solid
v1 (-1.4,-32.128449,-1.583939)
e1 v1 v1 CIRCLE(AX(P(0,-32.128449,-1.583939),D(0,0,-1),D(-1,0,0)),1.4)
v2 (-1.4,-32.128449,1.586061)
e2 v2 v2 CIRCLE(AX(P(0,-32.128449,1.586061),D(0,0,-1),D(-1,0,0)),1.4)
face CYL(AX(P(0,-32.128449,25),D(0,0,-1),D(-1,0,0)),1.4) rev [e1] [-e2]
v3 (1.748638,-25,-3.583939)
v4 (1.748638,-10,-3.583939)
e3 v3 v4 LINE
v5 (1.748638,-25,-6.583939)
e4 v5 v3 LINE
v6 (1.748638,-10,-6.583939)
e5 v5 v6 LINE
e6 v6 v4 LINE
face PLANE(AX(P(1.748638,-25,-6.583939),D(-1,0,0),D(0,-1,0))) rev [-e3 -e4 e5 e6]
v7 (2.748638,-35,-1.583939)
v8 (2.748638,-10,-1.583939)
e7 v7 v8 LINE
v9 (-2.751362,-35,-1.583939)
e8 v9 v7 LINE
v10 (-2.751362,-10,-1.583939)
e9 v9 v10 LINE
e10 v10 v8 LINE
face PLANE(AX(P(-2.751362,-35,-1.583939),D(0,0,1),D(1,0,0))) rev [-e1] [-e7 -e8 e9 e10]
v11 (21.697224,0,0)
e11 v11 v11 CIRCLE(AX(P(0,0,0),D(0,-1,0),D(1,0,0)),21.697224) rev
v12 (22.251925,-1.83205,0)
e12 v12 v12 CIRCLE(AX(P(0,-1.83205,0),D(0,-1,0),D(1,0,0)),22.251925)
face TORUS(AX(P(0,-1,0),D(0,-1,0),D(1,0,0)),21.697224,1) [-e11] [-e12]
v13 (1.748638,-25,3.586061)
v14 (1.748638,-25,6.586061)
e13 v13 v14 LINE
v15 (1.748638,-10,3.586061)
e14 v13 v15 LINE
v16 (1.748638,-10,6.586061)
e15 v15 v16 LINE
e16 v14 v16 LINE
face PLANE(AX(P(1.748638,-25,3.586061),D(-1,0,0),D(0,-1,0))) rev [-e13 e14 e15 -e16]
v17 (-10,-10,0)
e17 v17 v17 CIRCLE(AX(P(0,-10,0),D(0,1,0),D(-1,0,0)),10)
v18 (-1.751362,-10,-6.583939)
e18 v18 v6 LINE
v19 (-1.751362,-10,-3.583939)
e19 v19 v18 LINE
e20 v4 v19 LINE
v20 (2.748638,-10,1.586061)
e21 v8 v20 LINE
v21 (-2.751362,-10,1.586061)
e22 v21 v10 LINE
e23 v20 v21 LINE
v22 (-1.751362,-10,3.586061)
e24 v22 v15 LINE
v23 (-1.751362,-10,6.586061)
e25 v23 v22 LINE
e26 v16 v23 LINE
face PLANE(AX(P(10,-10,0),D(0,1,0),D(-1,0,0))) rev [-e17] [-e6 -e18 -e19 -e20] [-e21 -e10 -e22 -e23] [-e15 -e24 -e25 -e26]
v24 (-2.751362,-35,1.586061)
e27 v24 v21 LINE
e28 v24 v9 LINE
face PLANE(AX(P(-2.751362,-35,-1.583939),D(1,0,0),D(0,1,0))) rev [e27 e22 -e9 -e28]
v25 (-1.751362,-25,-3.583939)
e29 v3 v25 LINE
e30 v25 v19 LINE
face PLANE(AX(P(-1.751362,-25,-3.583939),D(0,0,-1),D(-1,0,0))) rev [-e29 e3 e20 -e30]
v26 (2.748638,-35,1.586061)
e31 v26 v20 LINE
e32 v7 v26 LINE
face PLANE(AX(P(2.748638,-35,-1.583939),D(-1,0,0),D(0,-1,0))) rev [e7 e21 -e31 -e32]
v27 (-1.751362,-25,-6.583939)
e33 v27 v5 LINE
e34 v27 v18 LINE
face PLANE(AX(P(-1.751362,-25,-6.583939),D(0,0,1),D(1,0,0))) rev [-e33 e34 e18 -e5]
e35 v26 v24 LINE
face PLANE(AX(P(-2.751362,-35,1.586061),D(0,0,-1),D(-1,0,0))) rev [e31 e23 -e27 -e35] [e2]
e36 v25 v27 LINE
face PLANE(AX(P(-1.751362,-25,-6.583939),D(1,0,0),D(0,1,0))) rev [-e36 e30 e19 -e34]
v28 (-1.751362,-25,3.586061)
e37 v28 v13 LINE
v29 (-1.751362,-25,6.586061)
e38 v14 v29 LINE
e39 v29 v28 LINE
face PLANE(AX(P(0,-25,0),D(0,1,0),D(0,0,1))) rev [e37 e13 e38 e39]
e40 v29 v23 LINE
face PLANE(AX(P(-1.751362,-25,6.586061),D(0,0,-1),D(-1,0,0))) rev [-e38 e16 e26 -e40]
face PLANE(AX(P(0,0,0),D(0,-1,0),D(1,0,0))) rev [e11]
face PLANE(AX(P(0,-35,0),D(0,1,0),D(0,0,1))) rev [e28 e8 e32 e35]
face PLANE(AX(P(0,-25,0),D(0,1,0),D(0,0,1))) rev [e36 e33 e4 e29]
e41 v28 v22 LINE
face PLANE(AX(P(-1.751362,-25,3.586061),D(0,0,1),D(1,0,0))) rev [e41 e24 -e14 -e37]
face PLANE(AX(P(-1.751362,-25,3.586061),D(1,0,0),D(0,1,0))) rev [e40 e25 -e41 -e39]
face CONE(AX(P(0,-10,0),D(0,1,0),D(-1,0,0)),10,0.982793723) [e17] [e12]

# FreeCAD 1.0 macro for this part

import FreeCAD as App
import Part
import Sketcher

V = App.Vector
Q = App.Units.Quantity


def edges_at(feature, points):
    """Names of the edges that pass closest to the given points."""
    edges = feature.Shape.Edges
    near = lambda p: min(range(len(edges)), key=lambda i: edges[i].distToShape(Part.Vertex(*p))[0])
    return sorted({f"Edge{near(p) + 1}" for p in points})


def add_polygon(sketch, points):
    """Adds a closed chain of lines whose ends are joined by coincident constraints."""
    first, n = sketch.GeometryCount, len(points)
    for a, b in zip(points, points[1:] + points[:1]):
        sketch.addGeometry(Part.LineSegment(App.Vector(*a, 0), App.Vector(*b, 0)), False)
    for i in range(n):
        sketch.addConstraint(Sketcher.Constraint("Coincident", first + i, 2, first + (i + 1) % n, 1))

doc = App.newDocument("Part")
params = doc.addObject("Spreadsheet::Sheet", "Params")
for row, (alias, value) in enumerate([
    ("sketch1_width", "25 mm"),
    ("sketch1_width2", "10 mm"),
    ("revolution_angle", "360 deg"),
    ("sketch2_width", "5.5 mm"),
    ("sketch2_height", "3.17 mm"),
    ("pad1_length", "25 mm"),
    ("sketch3_diameter", "2.8 mm"),
    ("sketch4_height", "3 mm"),
    ("sketch4_width", "3.5 mm"),
    ("pad2_length", "15 mm"),
    ("fillet_radius", "1 mm"),
], start=1):
    params.set(f"A{row}", alias)
    params.set(f"B{row}", "=" + value)
    params.setAlias(f"B{row}", alias)

body = doc.addObject("PartDesign::Body", "Body")

# Sketch on XY plane
sketch1 = body.newObject("Sketcher::SketchObject", "Sketch")
sketch1.AttachmentSupport = (doc.getObject("XY_Plane"), [""])
sketch1.MapMode = "FlatFace"
add_polygon(sketch1, [(25, 0), (0, 0), (0, -10), (10, -10)])  # lines 0-3
sketch1.addConstraint(Sketcher.Constraint("Horizontal", 0))
sketch1.addConstraint(Sketcher.Constraint("Vertical", 1))
sketch1.addConstraint(Sketcher.Constraint("Horizontal", 2))
sketch1.addConstraint(Sketcher.Constraint("Coincident", 0, 2, -1, 1))
sketch1.addConstraint(Sketcher.Constraint("Equal", 2, 1))
sketch1.addConstraint(Sketcher.Constraint("DistanceX", 0, 2, 0, 1, Q("25 mm")))
sketch1.addConstraint(Sketcher.Constraint("DistanceX", 2, 1, 2, 2, Q("10 mm")))
sketch1.setExpression("Constraints[9]", "Params.sketch1_width")
sketch1.setExpression("Constraints[10]", "Params.sketch1_width2")
revolution = body.newObject("PartDesign::Revolution", "Revolution")
revolution.Profile = sketch1
revolution.ReferenceAxis = (sketch1, ["V_Axis"])
revolution.setExpression("Angle", "Params.revolution_angle")

# Sketch on XZ plane
sketch2 = body.newObject("Sketcher::SketchObject", "Sketch001")
sketch2.AttachmentSupport = (doc.getObject("XZ_Plane"), [""])
sketch2.MapMode = "FlatFace"
sketch2.AttachmentOffset = App.Placement(V(0, 0, 10), App.Rotation())
add_polygon(sketch2, [(-2.8, 1.6), (-2.8, -1.6), (2.7, -1.6), (2.7, 1.6)])  # lines 0-3
sketch2.addConstraint(Sketcher.Constraint("Vertical", 0))
sketch2.addConstraint(Sketcher.Constraint("Horizontal", 1))
sketch2.addConstraint(Sketcher.Constraint("Vertical", 2))
sketch2.addConstraint(Sketcher.Constraint("Horizontal", 3))
sketch2.addConstraint(Sketcher.Constraint("DistanceX", 1, 1, 1, 2, Q("5.5 mm")))
sketch2.addConstraint(Sketcher.Constraint("DistanceY", 0, 2, 0, 1, Q("3.17 mm")))
sketch2.addConstraint(Sketcher.Constraint("DistanceX", 0, 2, -1, 1, Q("2.751362 mm")))
sketch2.addConstraint(Sketcher.Constraint("DistanceY", 0, 2, -1, 1, Q("1.583939 mm")))
sketch2.setExpression("Constraints[8]", "Params.sketch2_width")
sketch2.setExpression("Constraints[9]", "Params.sketch2_height")
pad1 = body.newObject("PartDesign::Pad", "Pad")
pad1.Profile = sketch2
pad1.setExpression("Length", "Params.pad1_length")

# Sketch on XY plane
sketch3 = body.newObject("Sketcher::SketchObject", "Sketch002")
sketch3.AttachmentSupport = (doc.getObject("XY_Plane"), [""])
sketch3.MapMode = "FlatFace"
sketch3.AttachmentOffset = App.Placement(V(0, 0, -1.583939), App.Rotation())
sketch3.addGeometry(Part.Circle(V(0, -32.1, 0), V(0, 0, 1), 1.4), False)
sketch3.addConstraint(Sketcher.Constraint("PointOnObject", 0, 3, -2))
sketch3.addConstraint(Sketcher.Constraint("Diameter", 0, Q("2.8 mm")))
sketch3.addConstraint(Sketcher.Constraint("DistanceY", 0, 3, -1, 1, Q("32.128449 mm")))
sketch3.setExpression("Constraints[1]", "Params.sketch3_diameter")
pocket1 = body.newObject("PartDesign::Pocket", "Pocket")
pocket1.Profile = sketch3
pocket1.Type = "ThroughAll"
pocket1.Reversed = True

# Sketch on XZ plane
sketch4 = body.newObject("Sketcher::SketchObject", "Sketch003")
sketch4.AttachmentSupport = (doc.getObject("XZ_Plane"), [""])
sketch4.MapMode = "FlatFace"
sketch4.AttachmentOffset = App.Placement(V(0, 0, 10), App.Rotation())
add_polygon(sketch4, [(-1.8, -3.6), (-1.8, -6.6), (1.7, -6.6), (1.7, -3.6)])  # lines 0-3
add_polygon(sketch4, [(-1.8, 6.6), (-1.8, 3.6), (1.7, 3.6), (1.7, 6.6)])  # lines 4-7
sketch4.addConstraint(Sketcher.Constraint("Vertical", 0))
sketch4.addConstraint(Sketcher.Constraint("Horizontal", 1))
sketch4.addConstraint(Sketcher.Constraint("Vertical", 2))
sketch4.addConstraint(Sketcher.Constraint("Horizontal", 3))
sketch4.addConstraint(Sketcher.Constraint("Vertical", 4))
sketch4.addConstraint(Sketcher.Constraint("Horizontal", 5))
sketch4.addConstraint(Sketcher.Constraint("Vertical", 6))
sketch4.addConstraint(Sketcher.Constraint("Horizontal", 7))
sketch4.addConstraint(Sketcher.Constraint("Vertical", 3, 2, 4, 2))
sketch4.addConstraint(Sketcher.Constraint("Vertical", 2, 2, 5, 2))
sketch4.addConstraint(Sketcher.Constraint("Equal", 2, 4))
sketch4.addConstraint(Sketcher.Constraint("DistanceY", 0, 2, 0, 1, Q("3 mm")))
sketch4.addConstraint(Sketcher.Constraint("DistanceX", 1, 1, 1, 2, Q("3.5 mm")))
sketch4.addConstraint(Sketcher.Constraint("DistanceY", 3, 2, 4, 2, Q("7.17 mm")))
sketch4.addConstraint(Sketcher.Constraint("DistanceX", 0, 2, -1, 1, Q("1.751362 mm")))
sketch4.addConstraint(Sketcher.Constraint("DistanceY", 0, 2, -1, 1, Q("6.583939 mm")))
sketch4.setExpression("Constraints[19]", "Params.sketch4_height")
sketch4.setExpression("Constraints[20]", "Params.sketch4_width")
pad2 = body.newObject("PartDesign::Pad", "Pad001")
pad2.Profile = sketch4
pad2.setExpression("Length", "Params.pad2_length")
doc.recompute()

fillet = body.newObject("PartDesign::Fillet", "Fillet")
fillet.Base = (pad2, edges_at(pad2, [(-25, 0, 0)]))
fillet.setExpression("Radius", "Params.fillet_radius")

doc.recompute()
